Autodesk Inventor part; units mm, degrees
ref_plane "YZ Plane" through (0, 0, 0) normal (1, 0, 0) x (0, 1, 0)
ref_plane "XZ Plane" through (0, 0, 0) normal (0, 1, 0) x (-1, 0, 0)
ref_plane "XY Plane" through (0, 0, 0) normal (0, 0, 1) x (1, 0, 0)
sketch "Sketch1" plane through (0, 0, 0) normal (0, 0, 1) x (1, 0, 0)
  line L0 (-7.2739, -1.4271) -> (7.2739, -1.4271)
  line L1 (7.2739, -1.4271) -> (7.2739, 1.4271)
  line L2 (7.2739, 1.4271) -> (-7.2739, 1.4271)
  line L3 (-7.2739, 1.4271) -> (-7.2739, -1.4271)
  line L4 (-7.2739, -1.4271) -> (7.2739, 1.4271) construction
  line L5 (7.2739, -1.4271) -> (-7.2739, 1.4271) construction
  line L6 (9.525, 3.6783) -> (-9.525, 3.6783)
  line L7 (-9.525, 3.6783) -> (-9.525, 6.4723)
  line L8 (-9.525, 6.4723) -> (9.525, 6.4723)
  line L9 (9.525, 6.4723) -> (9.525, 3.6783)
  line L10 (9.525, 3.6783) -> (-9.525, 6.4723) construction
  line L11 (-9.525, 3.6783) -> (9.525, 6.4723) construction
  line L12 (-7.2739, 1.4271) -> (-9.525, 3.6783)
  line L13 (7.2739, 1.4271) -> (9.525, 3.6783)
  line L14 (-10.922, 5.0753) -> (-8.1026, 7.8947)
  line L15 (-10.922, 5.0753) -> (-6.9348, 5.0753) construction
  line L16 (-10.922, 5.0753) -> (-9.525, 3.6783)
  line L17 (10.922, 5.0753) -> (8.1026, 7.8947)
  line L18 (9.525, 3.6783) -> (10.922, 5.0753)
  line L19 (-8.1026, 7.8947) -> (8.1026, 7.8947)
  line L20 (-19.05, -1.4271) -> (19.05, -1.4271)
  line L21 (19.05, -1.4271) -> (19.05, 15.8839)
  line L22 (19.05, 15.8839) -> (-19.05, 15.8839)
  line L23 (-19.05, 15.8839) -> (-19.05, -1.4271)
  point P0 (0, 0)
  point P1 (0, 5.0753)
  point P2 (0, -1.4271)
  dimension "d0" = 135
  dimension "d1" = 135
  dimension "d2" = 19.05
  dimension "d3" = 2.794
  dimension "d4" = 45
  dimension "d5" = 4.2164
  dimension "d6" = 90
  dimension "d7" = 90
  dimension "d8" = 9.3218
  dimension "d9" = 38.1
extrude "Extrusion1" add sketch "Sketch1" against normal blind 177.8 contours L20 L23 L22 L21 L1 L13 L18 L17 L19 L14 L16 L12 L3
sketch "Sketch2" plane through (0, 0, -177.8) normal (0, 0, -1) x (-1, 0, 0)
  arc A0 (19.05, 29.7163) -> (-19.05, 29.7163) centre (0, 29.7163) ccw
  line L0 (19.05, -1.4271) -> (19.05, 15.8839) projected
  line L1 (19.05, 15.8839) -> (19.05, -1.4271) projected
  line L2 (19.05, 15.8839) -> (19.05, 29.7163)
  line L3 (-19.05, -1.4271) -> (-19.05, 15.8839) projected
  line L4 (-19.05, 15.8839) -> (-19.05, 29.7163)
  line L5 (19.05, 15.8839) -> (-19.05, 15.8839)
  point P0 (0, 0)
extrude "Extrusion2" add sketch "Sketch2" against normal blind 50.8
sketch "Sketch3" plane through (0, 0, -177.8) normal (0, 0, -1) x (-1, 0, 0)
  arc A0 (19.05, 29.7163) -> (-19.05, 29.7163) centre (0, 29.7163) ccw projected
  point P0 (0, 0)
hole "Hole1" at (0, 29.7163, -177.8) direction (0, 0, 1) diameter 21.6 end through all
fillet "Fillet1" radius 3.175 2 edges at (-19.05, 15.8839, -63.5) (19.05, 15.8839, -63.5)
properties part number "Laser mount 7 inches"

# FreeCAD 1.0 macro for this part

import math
import FreeCAD as App
import Part
import Sketcher

V = App.Vector
Q = App.Units.Quantity


def edges_at(feature, points):
    """Names of the edges that pass closest to the given points."""
    edges = feature.Shape.Edges
    near = lambda p: min(range(len(edges)), key=lambda i: edges[i].distToShape(Part.Vertex(*p))[0])
    return sorted({f"Edge{near(p) + 1}" for p in points})


def add_polygon(sketch, points):
    """Adds a closed chain of lines whose ends are joined by coincident constraints."""
    first, n = sketch.GeometryCount, len(points)
    for a, b in zip(points, points[1:] + points[:1]):
        sketch.addGeometry(Part.LineSegment(App.Vector(*a, 0), App.Vector(*b, 0)), False)
    for i in range(n):
        sketch.addConstraint(Sketcher.Constraint("Coincident", first + i, 2, first + (i + 1) % n, 1))

doc = App.newDocument("Part")
body = doc.addObject("PartDesign::Body", "Body")

sketch1 = doc.addObject("Sketcher::SketchObject", "Sketch")
body.addObject(sketch1)
sketch1.AttachmentSupport = (doc.XY_Plane, [""])
sketch1.MapMode = "FlatFace"
add_polygon(sketch1, [(-19.05, -1.4271), (-7.2739, -1.4271), (-7.2739, 1.4271), (-9.525, 3.6783), (-10.922, 5.0753), (-8.1026, 7.8947), (8.1026, 7.8947), (10.922, 5.0753), (9.525, 3.6783), (7.2739, 1.4271), (7.2739, -1.4271), (19.05, -1.4271), (19.05, 15.8839), (-19.05, 15.8839)])
sketch1.addConstraint(Sketcher.Constraint("Horizontal", 0))
sketch1.addConstraint(Sketcher.Constraint("Vertical", 1))
sketch1.addConstraint(Sketcher.Constraint("Horizontal", 5))
sketch1.addConstraint(Sketcher.Constraint("Vertical", 9))
sketch1.addConstraint(Sketcher.Constraint("Horizontal", 10))
sketch1.addConstraint(Sketcher.Constraint("Vertical", 11))
sketch1.addConstraint(Sketcher.Constraint("Horizontal", 12))
sketch1.addConstraint(Sketcher.Constraint("Vertical", 13))
sketch1.addConstraint(Sketcher.Constraint("Symmetric", 0, 2, 8, 2, -1, 1))
sketch1.addConstraint(Sketcher.Constraint("Symmetric", 3, 2, 6, 2, -2))
sketch1.addConstraint(Sketcher.Constraint("Symmetric", 2, 2, 7, 2, -2))
sketch1.addConstraint(Sketcher.Constraint("Symmetric", 10, 2, 13, 2, -2))
sketch1.addConstraint(Sketcher.Constraint("Parallel", 2, 3))
sketch1.addConstraint(Sketcher.Constraint("Perpendicular", 3, 4))
sketch1.addConstraint(Sketcher.Constraint("Perpendicular", 4, 6))
sketch1.addConstraint(Sketcher.Constraint("Perpendicular", 6, 7))
sketch1.addConstraint(Sketcher.Constraint("Parallel", 7, 8))
sketch1.addConstraint(Sketcher.Constraint("DistanceX", 12, 2, 12, 1, Q("1.5 in")))
sketch1.addConstraint(Sketcher.Constraint("DistanceY", 2, 2, 4, 2, Q("0.166 in")))
sketch1.addConstraint(Sketcher.Constraint("DistanceY", 0, 2, 4, 2, Q("0.367 in")))
sketch1.addConstraint(Sketcher.Constraint("DistanceX", 5, 1, 5, 2, Q("0.638 in")))
sketch1.addConstraint(Sketcher.Constraint("DistanceX", 3, 2, -1, 1, Q("0.43 in")))
sketch1.addConstraint(Sketcher.Constraint("DistanceX", 0, 1, 0, 2, 11.776))
sketch1.addConstraint(Sketcher.Constraint("DistanceY", 11, 1, 11, 2, 17.311))
pad1 = doc.addObject("PartDesign::Pad", "Pad")
body.addObject(pad1)
pad1.Profile = sketch1
pad1.Length = Q("7 in")
pad1.Reversed = True

sketch2 = doc.addObject("Sketcher::SketchObject", "Sketch001")
body.addObject(sketch2)
sketch2.AttachmentSupport = (doc.XY_Plane, [""])
sketch2.MapMode = "FlatFace"
sketch2.AttachmentOffset = App.Placement(V(0, 0, -7 * 25.4), App.Rotation())
sketch2.addGeometry(Part.LineSegment(V(-19.05, 15.8839, 0), V(-19.05, 29.7163, 0)), False)
sketch2.addGeometry(Part.ArcOfCircle(Part.Circle(V(0, 29.7163, 0), V(0, 0, 1), 19.05), math.radians(0), math.radians(180)), False)
sketch2.addGeometry(Part.LineSegment(V(19.05, 29.7163, 0), V(19.05, 15.8839, 0)), False)
sketch2.addGeometry(Part.LineSegment(V(19.05, 15.8839, 0), V(-19.05, 15.8839, 0)), False)
sketch2.addConstraint(Sketcher.Constraint("Tangent", 0, 2, 1, 2))
sketch2.addConstraint(Sketcher.Constraint("Tangent", 1, 1, 2, 1))
sketch2.addConstraint(Sketcher.Constraint("Coincident", 2, 2, 3, 1))
sketch2.addConstraint(Sketcher.Constraint("Coincident", 3, 2, 0, 1))
sketch2.addConstraint(Sketcher.Constraint("Vertical", 0))
sketch2.addConstraint(Sketcher.Constraint("Vertical", 2))
sketch2.addConstraint(Sketcher.Constraint("Horizontal", 3))
sketch2.addConstraint(Sketcher.Constraint("PointOnObject", 1, 3, -2))
sketch2.addConstraint(Sketcher.Constraint("Radius", 1, Q("0.75 in")))
sketch2.addConstraint(Sketcher.Constraint("DistanceY", 0, 1, 0, 2, 13.8324))
sketch2.addConstraint(Sketcher.Constraint("DistanceY", -1, 1, 1, 3, 29.7163))
pad2 = doc.addObject("PartDesign::Pad", "Pad001")
body.addObject(pad2)
pad2.Profile = sketch2
pad2.Length = Q("2 in")

sketch3 = doc.addObject("Sketcher::SketchObject", "Sketch002")
body.addObject(sketch3)
sketch3.AttachmentSupport = (doc.XY_Plane, [""])
sketch3.MapMode = "FlatFace"
sketch3.AttachmentOffset = App.Placement(V(0, 0, -7 * 25.4), App.Rotation())
sketch3.addGeometry(Part.Circle(V(0, 29.7163, 0), V(0, 0, 1), 10.8), False)
sketch3.addConstraint(Sketcher.Constraint("PointOnObject", 0, 3, -2))
sketch3.addConstraint(Sketcher.Constraint("Diameter", 0, Q("0.8504 in")))
sketch3.addConstraint(Sketcher.Constraint("DistanceY", -1, 1, 0, 3, 29.7163))
doc.recompute()
hole = doc.addObject("PartDesign::Hole", "Hole")
body.addObject(hole)
hole.Profile = sketch3
hole.ThreadType = "None"
hole.Diameter = Q("0.8503937 in")
hole.DepthType = "ThroughAll"
hole.Reversed = True
doc.recompute()

fillet = doc.addObject("PartDesign::Fillet", "Fillet")
body.addObject(fillet)
fillet.Base = (hole, edges_at(hole, [(-19.05, 15.884, -63.5), (19.05, 15.884, -63.5)]))
fillet.Radius = Q("0.125 in")

doc.recompute()
